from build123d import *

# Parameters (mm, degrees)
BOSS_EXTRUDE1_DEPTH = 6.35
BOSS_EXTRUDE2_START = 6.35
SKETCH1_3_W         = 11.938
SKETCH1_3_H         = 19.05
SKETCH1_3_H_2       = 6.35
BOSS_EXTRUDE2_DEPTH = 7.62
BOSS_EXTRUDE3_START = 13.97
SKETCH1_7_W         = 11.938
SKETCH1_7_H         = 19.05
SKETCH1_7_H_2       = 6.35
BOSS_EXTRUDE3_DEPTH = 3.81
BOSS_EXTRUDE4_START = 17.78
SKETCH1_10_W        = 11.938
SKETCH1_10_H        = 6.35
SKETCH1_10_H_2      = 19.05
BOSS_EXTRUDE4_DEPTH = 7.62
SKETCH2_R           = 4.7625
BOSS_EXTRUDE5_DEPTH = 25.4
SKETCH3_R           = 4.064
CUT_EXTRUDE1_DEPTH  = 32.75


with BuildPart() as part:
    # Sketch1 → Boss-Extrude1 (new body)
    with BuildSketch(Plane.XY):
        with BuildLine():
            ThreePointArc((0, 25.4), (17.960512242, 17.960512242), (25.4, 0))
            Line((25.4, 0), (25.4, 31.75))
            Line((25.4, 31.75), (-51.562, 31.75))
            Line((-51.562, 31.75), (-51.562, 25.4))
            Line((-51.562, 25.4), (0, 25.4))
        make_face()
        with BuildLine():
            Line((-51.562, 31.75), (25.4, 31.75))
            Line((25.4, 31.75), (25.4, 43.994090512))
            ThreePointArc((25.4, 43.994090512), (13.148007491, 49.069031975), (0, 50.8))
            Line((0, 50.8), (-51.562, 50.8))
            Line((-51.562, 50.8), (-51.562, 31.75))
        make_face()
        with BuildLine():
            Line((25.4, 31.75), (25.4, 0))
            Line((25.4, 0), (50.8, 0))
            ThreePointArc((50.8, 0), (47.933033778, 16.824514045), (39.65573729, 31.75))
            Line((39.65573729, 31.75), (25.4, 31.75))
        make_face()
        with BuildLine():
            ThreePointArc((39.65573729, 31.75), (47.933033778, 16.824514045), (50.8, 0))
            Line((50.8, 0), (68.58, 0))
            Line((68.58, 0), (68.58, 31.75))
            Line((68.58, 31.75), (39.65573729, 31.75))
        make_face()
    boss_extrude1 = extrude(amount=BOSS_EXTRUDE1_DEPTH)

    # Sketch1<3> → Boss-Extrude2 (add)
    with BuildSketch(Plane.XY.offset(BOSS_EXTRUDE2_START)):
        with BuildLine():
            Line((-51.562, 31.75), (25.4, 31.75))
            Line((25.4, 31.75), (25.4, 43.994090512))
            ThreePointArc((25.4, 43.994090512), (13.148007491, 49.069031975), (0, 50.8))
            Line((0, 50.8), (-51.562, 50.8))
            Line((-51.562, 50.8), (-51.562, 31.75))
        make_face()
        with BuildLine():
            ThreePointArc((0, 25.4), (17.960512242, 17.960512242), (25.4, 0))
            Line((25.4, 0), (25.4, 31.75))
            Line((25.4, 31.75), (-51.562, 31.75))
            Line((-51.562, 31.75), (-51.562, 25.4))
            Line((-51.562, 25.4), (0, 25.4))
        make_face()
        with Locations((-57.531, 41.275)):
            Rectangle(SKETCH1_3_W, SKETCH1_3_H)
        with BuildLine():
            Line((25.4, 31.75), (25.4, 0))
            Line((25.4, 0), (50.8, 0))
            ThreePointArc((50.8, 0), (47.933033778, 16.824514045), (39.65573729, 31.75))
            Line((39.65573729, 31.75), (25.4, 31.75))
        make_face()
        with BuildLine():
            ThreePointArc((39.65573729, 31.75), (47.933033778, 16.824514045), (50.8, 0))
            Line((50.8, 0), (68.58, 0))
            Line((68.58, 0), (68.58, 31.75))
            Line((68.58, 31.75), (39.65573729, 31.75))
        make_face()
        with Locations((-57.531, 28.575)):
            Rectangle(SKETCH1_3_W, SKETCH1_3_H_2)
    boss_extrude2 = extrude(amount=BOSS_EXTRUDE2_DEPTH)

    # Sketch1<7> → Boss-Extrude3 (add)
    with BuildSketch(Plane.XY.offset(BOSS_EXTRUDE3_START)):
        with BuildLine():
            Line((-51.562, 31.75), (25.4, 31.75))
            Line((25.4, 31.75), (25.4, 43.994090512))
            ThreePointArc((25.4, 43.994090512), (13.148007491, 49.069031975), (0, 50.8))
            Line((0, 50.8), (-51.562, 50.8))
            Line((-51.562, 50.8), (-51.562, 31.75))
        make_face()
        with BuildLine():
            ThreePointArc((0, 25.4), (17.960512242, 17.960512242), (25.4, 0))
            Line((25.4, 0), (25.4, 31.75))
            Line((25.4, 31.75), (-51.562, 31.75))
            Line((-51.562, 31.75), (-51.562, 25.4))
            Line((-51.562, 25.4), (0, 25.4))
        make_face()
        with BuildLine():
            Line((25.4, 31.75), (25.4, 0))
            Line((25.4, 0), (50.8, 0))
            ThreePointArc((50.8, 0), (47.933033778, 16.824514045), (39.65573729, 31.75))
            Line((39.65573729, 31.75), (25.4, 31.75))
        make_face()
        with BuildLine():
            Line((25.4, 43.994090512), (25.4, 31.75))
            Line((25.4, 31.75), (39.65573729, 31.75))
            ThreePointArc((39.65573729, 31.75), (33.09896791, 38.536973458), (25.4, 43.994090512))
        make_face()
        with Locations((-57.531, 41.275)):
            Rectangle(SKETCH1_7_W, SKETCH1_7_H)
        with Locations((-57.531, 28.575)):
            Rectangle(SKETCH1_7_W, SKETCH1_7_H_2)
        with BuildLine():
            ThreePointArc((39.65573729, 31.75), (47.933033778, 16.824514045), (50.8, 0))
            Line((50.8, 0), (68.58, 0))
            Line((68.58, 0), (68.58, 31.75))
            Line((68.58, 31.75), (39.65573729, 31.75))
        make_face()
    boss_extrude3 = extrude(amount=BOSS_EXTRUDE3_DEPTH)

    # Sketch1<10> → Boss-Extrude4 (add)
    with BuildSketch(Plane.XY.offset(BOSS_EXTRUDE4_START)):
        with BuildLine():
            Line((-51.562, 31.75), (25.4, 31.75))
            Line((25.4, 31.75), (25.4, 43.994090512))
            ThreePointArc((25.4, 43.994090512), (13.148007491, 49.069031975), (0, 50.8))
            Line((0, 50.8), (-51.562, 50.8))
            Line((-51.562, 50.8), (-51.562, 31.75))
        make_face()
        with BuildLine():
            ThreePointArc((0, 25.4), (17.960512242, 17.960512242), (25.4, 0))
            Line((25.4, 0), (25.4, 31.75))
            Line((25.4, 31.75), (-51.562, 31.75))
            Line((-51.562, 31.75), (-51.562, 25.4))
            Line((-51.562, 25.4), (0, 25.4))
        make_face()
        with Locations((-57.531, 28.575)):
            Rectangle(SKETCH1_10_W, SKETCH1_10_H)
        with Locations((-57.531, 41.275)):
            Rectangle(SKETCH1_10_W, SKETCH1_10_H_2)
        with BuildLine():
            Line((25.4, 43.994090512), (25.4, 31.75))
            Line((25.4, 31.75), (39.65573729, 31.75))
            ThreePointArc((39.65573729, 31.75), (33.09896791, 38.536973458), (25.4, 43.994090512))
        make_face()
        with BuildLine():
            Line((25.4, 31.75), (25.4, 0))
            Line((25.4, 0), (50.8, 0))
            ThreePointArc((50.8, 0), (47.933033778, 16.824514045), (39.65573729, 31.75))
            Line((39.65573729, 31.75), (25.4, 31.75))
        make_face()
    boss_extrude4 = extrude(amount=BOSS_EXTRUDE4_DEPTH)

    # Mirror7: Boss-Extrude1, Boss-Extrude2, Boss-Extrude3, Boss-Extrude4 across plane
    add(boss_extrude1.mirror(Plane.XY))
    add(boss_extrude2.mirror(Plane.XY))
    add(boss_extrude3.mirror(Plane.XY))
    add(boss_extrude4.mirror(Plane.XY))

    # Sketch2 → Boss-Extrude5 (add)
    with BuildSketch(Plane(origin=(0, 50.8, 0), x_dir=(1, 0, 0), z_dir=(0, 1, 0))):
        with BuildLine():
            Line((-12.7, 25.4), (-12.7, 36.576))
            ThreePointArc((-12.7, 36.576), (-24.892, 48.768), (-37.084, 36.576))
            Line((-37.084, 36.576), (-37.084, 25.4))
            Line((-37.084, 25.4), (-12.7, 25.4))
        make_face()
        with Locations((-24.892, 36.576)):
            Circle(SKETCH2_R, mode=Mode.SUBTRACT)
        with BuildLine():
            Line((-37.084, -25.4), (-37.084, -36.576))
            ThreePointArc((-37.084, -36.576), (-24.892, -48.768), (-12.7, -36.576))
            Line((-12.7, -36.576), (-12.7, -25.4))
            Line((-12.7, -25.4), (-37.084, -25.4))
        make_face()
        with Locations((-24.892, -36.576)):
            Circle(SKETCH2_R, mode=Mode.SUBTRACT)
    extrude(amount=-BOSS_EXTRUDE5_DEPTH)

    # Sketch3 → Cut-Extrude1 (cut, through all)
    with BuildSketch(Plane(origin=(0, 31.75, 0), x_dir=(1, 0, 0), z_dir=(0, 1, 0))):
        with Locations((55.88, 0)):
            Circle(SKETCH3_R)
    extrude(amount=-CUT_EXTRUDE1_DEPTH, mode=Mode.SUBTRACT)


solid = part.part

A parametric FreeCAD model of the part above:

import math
import FreeCAD as App
import Part
import Sketcher

V = App.Vector
Q = App.Units.Quantity

doc = App.newDocument("Part")
body = doc.addObject("PartDesign::Body", "Body")

# Sketch on XY plane
sketch1 = body.newObject("Sketcher::SketchObject", "Sketch")
sketch1.AttachmentSupport = (doc.getObject("XY_Plane"), [""])
sketch1.MapMode = "FlatFace"
sketch1.addGeometry([
    Part.ArcOfCircle(Part.Circle(V(0, 0, 0), V(0, 0, 1), 25), math.radians(0), math.radians(90)),  # 0
    Part.LineSegment(V(25, 0, 0), V(69, 0, 0)),  # 1
    Part.LineSegment(V(69, 0, 0), V(69, 32, 0)),  # 2
    Part.LineSegment(V(69, 32, 0), V(25, 32, 0)),  # 3
    Part.LineSegment(V(25, 32, 0), V(25, 44, 0)),  # 4
    Part.ArcOfCircle(Part.Circle(V(0, 0, 0), V(0, 0, 1), 51), math.radians(60), math.radians(90)),  # 5
    Part.LineSegment(V(0, 51, 0), V(-52, 51, 0)),  # 6
    Part.LineSegment(V(-52, 51, 0), V(-52, 25, 0)),  # 7
    Part.LineSegment(V(-52, 25, 0), V(0, 25, 0)),  # 8
], False)
sketch1.addConstraint([
    Sketcher.Constraint("Coincident", 0, 1, 1, 1),
    Sketcher.Constraint("Coincident", 1, 2, 2, 1),
    Sketcher.Constraint("Coincident", 2, 2, 3, 1),
    Sketcher.Constraint("Coincident", 3, 2, 4, 1),
    Sketcher.Constraint("Coincident", 4, 2, 5, 1),
    Sketcher.Constraint("Tangent", 5, 2, 6, 1),
    Sketcher.Constraint("Coincident", 6, 2, 7, 1),
    Sketcher.Constraint("Coincident", 7, 2, 8, 1),
    Sketcher.Constraint("Tangent", 8, 2, 0, 2),
    Sketcher.Constraint("Horizontal", 1),
    Sketcher.Constraint("Vertical", 2),
    Sketcher.Constraint("Horizontal", 3),
    Sketcher.Constraint("Vertical", 4),
    Sketcher.Constraint("Horizontal", 6),
    Sketcher.Constraint("Vertical", 7),
    Sketcher.Constraint("Horizontal", 8),
    Sketcher.Constraint("Coincident", 0, 3, -1, 1),
    Sketcher.Constraint("Coincident", 5, 3, -1, 1),
    Sketcher.Constraint("PointOnObject", 0, 1, -1),
    Sketcher.Constraint("Vertical", 0, 1, 3, 2),
    Sketcher.Constraint("Radius", 0, Q("1 in")),
    Sketcher.Constraint("Radius", 5, Q("2 in")),
    Sketcher.Constraint("DistanceX", 1, 1, 1, 2, Q("1.7 in")),
    Sketcher.Constraint("DistanceX", 6, 2, 6, 1, Q("2.03 in")),
    Sketcher.Constraint("DistanceY", 2, 1, 2, 2, Q("1.25 in")),
])
pad1 = body.newObject("PartDesign::Pad", "Pad")
pad1.Profile = sketch1
pad1.Length = Q("0.25 in")

# Sketch on XY plane
sketch2 = body.newObject("Sketcher::SketchObject", "Sketch001")
sketch2.AttachmentSupport = (doc.getObject("XY_Plane"), [""])
sketch2.MapMode = "FlatFace"
sketch2.AttachmentOffset = App.Placement(V(0, 0, 0.25 * 25.4), App.Rotation())
sketch2.addGeometry([
    Part.ArcOfCircle(Part.Circle(V(0, 0, 0), V(0, 0, 1), 51), math.radians(60), math.radians(90)),  # 0
    Part.LineSegment(V(0, 51, 0), V(-64, 51, 0)),  # 1
    Part.LineSegment(V(-64, 51, 0), V(-64, 25, 0)),  # 2
    Part.LineSegment(V(-64, 25, 0), V(0, 25, 0)),  # 3
    Part.ArcOfCircle(Part.Circle(V(0, 0, 0), V(0, 0, 1), 25), math.radians(0), math.radians(90)),  # 4
    Part.LineSegment(V(25, 0, 0), V(69, 0, 0)),  # 5
    Part.LineSegment(V(69, 0, 0), V(69, 32, 0)),  # 6
    Part.LineSegment(V(69, 32, 0), V(25, 32, 0)),  # 7
    Part.LineSegment(V(25, 32, 0), V(25, 44, 0)),  # 8
], False)
sketch2.addConstraint([
    Sketcher.Constraint("Tangent", 0, 2, 1, 1),
    Sketcher.Constraint("Coincident", 1, 2, 2, 1),
    Sketcher.Constraint("Coincident", 2, 2, 3, 1),
    Sketcher.Constraint("Tangent", 3, 2, 4, 2),
    Sketcher.Constraint("Coincident", 4, 1, 5, 1),
    Sketcher.Constraint("Coincident", 5, 2, 6, 1),
    Sketcher.Constraint("Coincident", 6, 2, 7, 1),
    Sketcher.Constraint("Coincident", 7, 2, 8, 1),
    Sketcher.Constraint("Coincident", 8, 2, 0, 1),
    Sketcher.Constraint("Horizontal", 1),
    Sketcher.Constraint("Vertical", 2),
    Sketcher.Constraint("Horizontal", 3),
    Sketcher.Constraint("Horizontal", 5),
    Sketcher.Constraint("Vertical", 6),
    Sketcher.Constraint("Horizontal", 7),
    Sketcher.Constraint("Vertical", 8),
    Sketcher.Constraint("Coincident", 0, 3, -1, 1),
    Sketcher.Constraint("Coincident", 4, 3, -1, 1),
    Sketcher.Constraint("PointOnObject", 4, 1, -1),
    Sketcher.Constraint("Vertical", 4, 1, 7, 2),
    Sketcher.Constraint("Radius", 0, Q("2 in")),
    Sketcher.Constraint("Radius", 4, Q("1 in")),
    Sketcher.Constraint("DistanceX", 1, 2, 1, 1, Q("2.5 in")),
    Sketcher.Constraint("DistanceX", 5, 1, 5, 2, Q("1.7 in")),
    Sketcher.Constraint("DistanceY", 6, 1, 6, 2, Q("1.25 in")),
])
pad2 = body.newObject("PartDesign::Pad", "Pad001")
pad2.Profile = sketch2
pad2.Length = Q("0.3 in")

# Sketch on XY plane
sketch3 = body.newObject("Sketcher::SketchObject", "Sketch002")
sketch3.AttachmentSupport = (doc.getObject("XY_Plane"), [""])
sketch3.MapMode = "FlatFace"
sketch3.AttachmentOffset = App.Placement(V(0, 0, 0.55 * 25.4), App.Rotation())
sketch3.addGeometry([
    Part.ArcOfCircle(Part.Circle(V(0, 0, 0), V(0, 0, 1), 51), math.radians(60), math.radians(90)),  # 0
    Part.LineSegment(V(0, 51, 0), V(-64, 51, 0)),  # 1
    Part.LineSegment(V(-64, 51, 0), V(-64, 25, 0)),  # 2
    Part.LineSegment(V(-64, 25, 0), V(0, 25, 0)),  # 3
    Part.ArcOfCircle(Part.Circle(V(0, 0, 0), V(0, 0, 1), 25), math.radians(0), math.radians(90)),  # 4
    Part.LineSegment(V(25, 0, 0), V(69, 0, 0)),  # 5
    Part.LineSegment(V(69, 0, 0), V(69, 32, 0)),  # 6
    Part.LineSegment(V(69, 32, 0), V(40, 32, 0)),  # 7
    Part.ArcOfCircle(Part.Circle(V(0, 0, 0), V(0, 0, 1), 51), math.radians(39), math.radians(60)),  # 8
], False)
sketch3.addConstraint([
    Sketcher.Constraint("Tangent", 0, 2, 1, 1),
    Sketcher.Constraint("Coincident", 1, 2, 2, 1),
    Sketcher.Constraint("Coincident", 2, 2, 3, 1),
    Sketcher.Constraint("Tangent", 3, 2, 4, 2),
    Sketcher.Constraint("Coincident", 4, 1, 5, 1),
    Sketcher.Constraint("Coincident", 5, 2, 6, 1),
    Sketcher.Constraint("Coincident", 6, 2, 7, 1),
    Sketcher.Constraint("Coincident", 7, 2, 8, 1),
    Sketcher.Constraint("Tangent", 8, 2, 0, 1),
    Sketcher.Constraint("Horizontal", 1),
    Sketcher.Constraint("Vertical", 2),
    Sketcher.Constraint("Horizontal", 3),
    Sketcher.Constraint("Horizontal", 5),
    Sketcher.Constraint("Vertical", 6),
    Sketcher.Constraint("Horizontal", 7),
    Sketcher.Constraint("Coincident", 0, 3, -1, 1),
    Sketcher.Constraint("Coincident", 4, 3, -1, 1),
    Sketcher.Constraint("Equal", 0, 8),
    Sketcher.Constraint("PointOnObject", 4, 1, -1),
    Sketcher.Constraint("Vertical", 4, 1, 8, 2),
    Sketcher.Constraint("Radius", 0, Q("2 in")),
    Sketcher.Constraint("Radius", 4, Q("1 in")),
    Sketcher.Constraint("DistanceX", 1, 2, 1, 1, Q("2.5 in")),
    Sketcher.Constraint("DistanceX", 5, 1, 5, 2, Q("1.7 in")),
    Sketcher.Constraint("DistanceY", 6, 1, 6, 2, Q("1.25 in")),
])
pad3 = body.newObject("PartDesign::Pad", "Pad002")
pad3.Profile = sketch3
pad3.Length = Q("0.15 in")

# Sketch on XY plane
sketch4 = body.newObject("Sketcher::SketchObject", "Sketch003")
sketch4.AttachmentSupport = (doc.getObject("XY_Plane"), [""])
sketch4.MapMode = "FlatFace"
sketch4.AttachmentOffset = App.Placement(V(0, 0, 0.7 * 25.4), App.Rotation())
sketch4.addGeometry([
    Part.ArcOfCircle(Part.Circle(V(0, 0, 0), V(0, 0, 1), 51), math.radians(60), math.radians(90)),  # 0
    Part.LineSegment(V(0, 51, 0), V(-64, 51, 0)),  # 1
    Part.LineSegment(V(-64, 51, 0), V(-64, 25, 0)),  # 2
    Part.LineSegment(V(-64, 25, 0), V(0, 25, 0)),  # 3
    Part.ArcOfCircle(Part.Circle(V(0, 0, 0), V(0, 0, 1), 25), math.radians(0), math.radians(90)),  # 4
    Part.LineSegment(V(25, 0, 0), V(51, 0, 0)),  # 5
    Part.ArcOfCircle(Part.Circle(V(0, 0, 0), V(0, 0, 1), 51), math.radians(0), math.radians(39)),  # 6
    Part.ArcOfCircle(Part.Circle(V(0, 0, 0), V(0, 0, 1), 51), math.radians(39), math.radians(60)),  # 7
], False)
sketch4.addConstraint([
    Sketcher.Constraint("Tangent", 0, 2, 1, 1),
    Sketcher.Constraint("Coincident", 1, 2, 2, 1),
    Sketcher.Constraint("Coincident", 2, 2, 3, 1),
    Sketcher.Constraint("Tangent", 3, 2, 4, 2),
    Sketcher.Constraint("Coincident", 4, 1, 5, 1),
    Sketcher.Constraint("Coincident", 5, 2, 6, 1),
    Sketcher.Constraint("Tangent", 6, 2, 7, 1),
    Sketcher.Constraint("Tangent", 7, 2, 0, 1),
    Sketcher.Constraint("Horizontal", 1),
    Sketcher.Constraint("Vertical", 2),
    Sketcher.Constraint("Horizontal", 3),
    Sketcher.Constraint("Horizontal", 5),
    Sketcher.Constraint("Coincident", 0, 3, -1, 1),
    Sketcher.Constraint("Coincident", 4, 3, -1, 1),
    Sketcher.Constraint("Coincident", 6, 3, -1, 1),
    Sketcher.Constraint("PointOnObject", 4, 1, -1),
    Sketcher.Constraint("Vertical", 4, 1, 7, 2),
    Sketcher.Constraint("Radius", 0, Q("2 in")),
    Sketcher.Constraint("Radius", 4, Q("1 in")),
    Sketcher.Constraint("DistanceX", 1, 2, 1, 1, Q("2.5 in")),
    Sketcher.Constraint("DistanceY", -1, 1, 6, 2, Q("1.25 in")),
])
pad4 = body.newObject("PartDesign::Pad", "Pad003")
pad4.Profile = sketch4
pad4.Length = Q("0.3 in")
doc.recompute()

mirrored = body.newObject("PartDesign::Mirrored", "Mirrored")
mirrored.Originals = [pad1, pad2, pad3, pad4]
mirrored.MirrorPlane = (doc.getObject("XY_Plane"), [""])
body.Tip = mirrored

# Sketch on XZ plane
sketch5 = body.newObject("Sketcher::SketchObject", "Sketch004")
sketch5.AttachmentSupport = (doc.getObject("XZ_Plane"), [""])
sketch5.MapMode = "FlatFace"
sketch5.AttachmentOffset = App.Placement(V(0, 0, -2 * 25.4), App.Rotation())
sketch5.addGeometry([
    Part.LineSegment(V(-12.7, -25.4, 0), V(-12.7, -36.6, 0)),  # 0
    Part.ArcOfCircle(Part.Circle(V(-24.9, -36.6, 0), V(0, 0, 1), 12.2), math.radians(180), math.radians(360)),  # 1
    Part.LineSegment(V(-37.1, -36.6, 0), V(-37.1, -25.4, 0)),  # 2
    Part.LineSegment(V(-37.1, -25.4, 0), V(-12.7, -25.4, 0)),  # 3
    Part.Circle(V(-24.9, -36.6, 0), V(0, 0, 1), 4.8),  # 4
    Part.LineSegment(V(-37.1, 25.4, 0), V(-37.1, 36.6, 0)),  # 5
    Part.ArcOfCircle(Part.Circle(V(-24.9, 36.6, 0), V(0, 0, 1), 12.2), math.radians(0), math.radians(180)),  # 6
    Part.LineSegment(V(-12.7, 36.6, 0), V(-12.7, 25.4, 0)),  # 7
    Part.LineSegment(V(-12.7, 25.4, 0), V(-37.1, 25.4, 0)),  # 8
    Part.Circle(V(-24.9, 36.6, 0), V(0, 0, 1), 4.8),  # 9
], False)
sketch5.addConstraint([
    Sketcher.Constraint("Tangent", 0, 2, 1, 2),
    Sketcher.Constraint("Tangent", 1, 1, 2, 1),
    Sketcher.Constraint("Coincident", 2, 2, 3, 1),
    Sketcher.Constraint("Coincident", 3, 2, 0, 1),
    Sketcher.Constraint("Tangent", 5, 2, 6, 2),
    Sketcher.Constraint("Tangent", 6, 1, 7, 1),
    Sketcher.Constraint("Coincident", 7, 2, 8, 1),
    Sketcher.Constraint("Coincident", 8, 2, 5, 1),
    Sketcher.Constraint("Vertical", 0),
    Sketcher.Constraint("Vertical", 2),
    Sketcher.Constraint("Horizontal", 3),
    Sketcher.Constraint("Vertical", 5),
    Sketcher.Constraint("Vertical", 7),
    Sketcher.Constraint("Horizontal", 8),
    Sketcher.Constraint("Coincident", 4, 3, 1, 3),
    Sketcher.Constraint("Coincident", 9, 3, 6, 3),
    Sketcher.Constraint("Equal", 1, 6),
    Sketcher.Constraint("Equal", 4, 9),
    Sketcher.Constraint("Symmetric", 1, 3, 6, 3, -1),
    Sketcher.Constraint("Equal", 2, 5),
    Sketcher.Constraint("Radius", 1, Q("0.48 in")),
    Sketcher.Constraint("Diameter", 4, Q("0.375 in")),
    Sketcher.Constraint("DistanceY", 2, 2, -1, 1, Q("1 in")),
    Sketcher.Constraint("DistanceY", 0, 2, 0, 1, Q("0.44 in")),
    Sketcher.Constraint("DistanceX", 0, 2, -1, 1, Q("0.5 in")),
])
pad5 = body.newObject("PartDesign::Pad", "Pad004")
pad5.Profile = sketch5
pad5.Length = Q("1 in")

# Sketch on XZ plane
sketch6 = body.newObject("Sketcher::SketchObject", "Sketch005")
sketch6.AttachmentSupport = (doc.getObject("XZ_Plane"), [""])
sketch6.MapMode = "FlatFace"
sketch6.AttachmentOffset = App.Placement(V(0, 0, -1.25 * 25.4), App.Rotation())
sketch6.addGeometry(Part.Circle(V(55.9, 0, 0), V(0, 0, 1), 4.1), False)
sketch6.addConstraint([
    Sketcher.Constraint("PointOnObject", 0, 3, -1),
    Sketcher.Constraint("Diameter", 0, Q("0.32 in")),
    Sketcher.Constraint("DistanceX", -1, 1, 0, 3, Q("2.2 in")),
])
pocket1 = body.newObject("PartDesign::Pocket", "Pocket")
pocket1.Profile = sketch6
pocket1.Type = "ThroughAll"
pocket1.Reversed = True

doc.recompute()
